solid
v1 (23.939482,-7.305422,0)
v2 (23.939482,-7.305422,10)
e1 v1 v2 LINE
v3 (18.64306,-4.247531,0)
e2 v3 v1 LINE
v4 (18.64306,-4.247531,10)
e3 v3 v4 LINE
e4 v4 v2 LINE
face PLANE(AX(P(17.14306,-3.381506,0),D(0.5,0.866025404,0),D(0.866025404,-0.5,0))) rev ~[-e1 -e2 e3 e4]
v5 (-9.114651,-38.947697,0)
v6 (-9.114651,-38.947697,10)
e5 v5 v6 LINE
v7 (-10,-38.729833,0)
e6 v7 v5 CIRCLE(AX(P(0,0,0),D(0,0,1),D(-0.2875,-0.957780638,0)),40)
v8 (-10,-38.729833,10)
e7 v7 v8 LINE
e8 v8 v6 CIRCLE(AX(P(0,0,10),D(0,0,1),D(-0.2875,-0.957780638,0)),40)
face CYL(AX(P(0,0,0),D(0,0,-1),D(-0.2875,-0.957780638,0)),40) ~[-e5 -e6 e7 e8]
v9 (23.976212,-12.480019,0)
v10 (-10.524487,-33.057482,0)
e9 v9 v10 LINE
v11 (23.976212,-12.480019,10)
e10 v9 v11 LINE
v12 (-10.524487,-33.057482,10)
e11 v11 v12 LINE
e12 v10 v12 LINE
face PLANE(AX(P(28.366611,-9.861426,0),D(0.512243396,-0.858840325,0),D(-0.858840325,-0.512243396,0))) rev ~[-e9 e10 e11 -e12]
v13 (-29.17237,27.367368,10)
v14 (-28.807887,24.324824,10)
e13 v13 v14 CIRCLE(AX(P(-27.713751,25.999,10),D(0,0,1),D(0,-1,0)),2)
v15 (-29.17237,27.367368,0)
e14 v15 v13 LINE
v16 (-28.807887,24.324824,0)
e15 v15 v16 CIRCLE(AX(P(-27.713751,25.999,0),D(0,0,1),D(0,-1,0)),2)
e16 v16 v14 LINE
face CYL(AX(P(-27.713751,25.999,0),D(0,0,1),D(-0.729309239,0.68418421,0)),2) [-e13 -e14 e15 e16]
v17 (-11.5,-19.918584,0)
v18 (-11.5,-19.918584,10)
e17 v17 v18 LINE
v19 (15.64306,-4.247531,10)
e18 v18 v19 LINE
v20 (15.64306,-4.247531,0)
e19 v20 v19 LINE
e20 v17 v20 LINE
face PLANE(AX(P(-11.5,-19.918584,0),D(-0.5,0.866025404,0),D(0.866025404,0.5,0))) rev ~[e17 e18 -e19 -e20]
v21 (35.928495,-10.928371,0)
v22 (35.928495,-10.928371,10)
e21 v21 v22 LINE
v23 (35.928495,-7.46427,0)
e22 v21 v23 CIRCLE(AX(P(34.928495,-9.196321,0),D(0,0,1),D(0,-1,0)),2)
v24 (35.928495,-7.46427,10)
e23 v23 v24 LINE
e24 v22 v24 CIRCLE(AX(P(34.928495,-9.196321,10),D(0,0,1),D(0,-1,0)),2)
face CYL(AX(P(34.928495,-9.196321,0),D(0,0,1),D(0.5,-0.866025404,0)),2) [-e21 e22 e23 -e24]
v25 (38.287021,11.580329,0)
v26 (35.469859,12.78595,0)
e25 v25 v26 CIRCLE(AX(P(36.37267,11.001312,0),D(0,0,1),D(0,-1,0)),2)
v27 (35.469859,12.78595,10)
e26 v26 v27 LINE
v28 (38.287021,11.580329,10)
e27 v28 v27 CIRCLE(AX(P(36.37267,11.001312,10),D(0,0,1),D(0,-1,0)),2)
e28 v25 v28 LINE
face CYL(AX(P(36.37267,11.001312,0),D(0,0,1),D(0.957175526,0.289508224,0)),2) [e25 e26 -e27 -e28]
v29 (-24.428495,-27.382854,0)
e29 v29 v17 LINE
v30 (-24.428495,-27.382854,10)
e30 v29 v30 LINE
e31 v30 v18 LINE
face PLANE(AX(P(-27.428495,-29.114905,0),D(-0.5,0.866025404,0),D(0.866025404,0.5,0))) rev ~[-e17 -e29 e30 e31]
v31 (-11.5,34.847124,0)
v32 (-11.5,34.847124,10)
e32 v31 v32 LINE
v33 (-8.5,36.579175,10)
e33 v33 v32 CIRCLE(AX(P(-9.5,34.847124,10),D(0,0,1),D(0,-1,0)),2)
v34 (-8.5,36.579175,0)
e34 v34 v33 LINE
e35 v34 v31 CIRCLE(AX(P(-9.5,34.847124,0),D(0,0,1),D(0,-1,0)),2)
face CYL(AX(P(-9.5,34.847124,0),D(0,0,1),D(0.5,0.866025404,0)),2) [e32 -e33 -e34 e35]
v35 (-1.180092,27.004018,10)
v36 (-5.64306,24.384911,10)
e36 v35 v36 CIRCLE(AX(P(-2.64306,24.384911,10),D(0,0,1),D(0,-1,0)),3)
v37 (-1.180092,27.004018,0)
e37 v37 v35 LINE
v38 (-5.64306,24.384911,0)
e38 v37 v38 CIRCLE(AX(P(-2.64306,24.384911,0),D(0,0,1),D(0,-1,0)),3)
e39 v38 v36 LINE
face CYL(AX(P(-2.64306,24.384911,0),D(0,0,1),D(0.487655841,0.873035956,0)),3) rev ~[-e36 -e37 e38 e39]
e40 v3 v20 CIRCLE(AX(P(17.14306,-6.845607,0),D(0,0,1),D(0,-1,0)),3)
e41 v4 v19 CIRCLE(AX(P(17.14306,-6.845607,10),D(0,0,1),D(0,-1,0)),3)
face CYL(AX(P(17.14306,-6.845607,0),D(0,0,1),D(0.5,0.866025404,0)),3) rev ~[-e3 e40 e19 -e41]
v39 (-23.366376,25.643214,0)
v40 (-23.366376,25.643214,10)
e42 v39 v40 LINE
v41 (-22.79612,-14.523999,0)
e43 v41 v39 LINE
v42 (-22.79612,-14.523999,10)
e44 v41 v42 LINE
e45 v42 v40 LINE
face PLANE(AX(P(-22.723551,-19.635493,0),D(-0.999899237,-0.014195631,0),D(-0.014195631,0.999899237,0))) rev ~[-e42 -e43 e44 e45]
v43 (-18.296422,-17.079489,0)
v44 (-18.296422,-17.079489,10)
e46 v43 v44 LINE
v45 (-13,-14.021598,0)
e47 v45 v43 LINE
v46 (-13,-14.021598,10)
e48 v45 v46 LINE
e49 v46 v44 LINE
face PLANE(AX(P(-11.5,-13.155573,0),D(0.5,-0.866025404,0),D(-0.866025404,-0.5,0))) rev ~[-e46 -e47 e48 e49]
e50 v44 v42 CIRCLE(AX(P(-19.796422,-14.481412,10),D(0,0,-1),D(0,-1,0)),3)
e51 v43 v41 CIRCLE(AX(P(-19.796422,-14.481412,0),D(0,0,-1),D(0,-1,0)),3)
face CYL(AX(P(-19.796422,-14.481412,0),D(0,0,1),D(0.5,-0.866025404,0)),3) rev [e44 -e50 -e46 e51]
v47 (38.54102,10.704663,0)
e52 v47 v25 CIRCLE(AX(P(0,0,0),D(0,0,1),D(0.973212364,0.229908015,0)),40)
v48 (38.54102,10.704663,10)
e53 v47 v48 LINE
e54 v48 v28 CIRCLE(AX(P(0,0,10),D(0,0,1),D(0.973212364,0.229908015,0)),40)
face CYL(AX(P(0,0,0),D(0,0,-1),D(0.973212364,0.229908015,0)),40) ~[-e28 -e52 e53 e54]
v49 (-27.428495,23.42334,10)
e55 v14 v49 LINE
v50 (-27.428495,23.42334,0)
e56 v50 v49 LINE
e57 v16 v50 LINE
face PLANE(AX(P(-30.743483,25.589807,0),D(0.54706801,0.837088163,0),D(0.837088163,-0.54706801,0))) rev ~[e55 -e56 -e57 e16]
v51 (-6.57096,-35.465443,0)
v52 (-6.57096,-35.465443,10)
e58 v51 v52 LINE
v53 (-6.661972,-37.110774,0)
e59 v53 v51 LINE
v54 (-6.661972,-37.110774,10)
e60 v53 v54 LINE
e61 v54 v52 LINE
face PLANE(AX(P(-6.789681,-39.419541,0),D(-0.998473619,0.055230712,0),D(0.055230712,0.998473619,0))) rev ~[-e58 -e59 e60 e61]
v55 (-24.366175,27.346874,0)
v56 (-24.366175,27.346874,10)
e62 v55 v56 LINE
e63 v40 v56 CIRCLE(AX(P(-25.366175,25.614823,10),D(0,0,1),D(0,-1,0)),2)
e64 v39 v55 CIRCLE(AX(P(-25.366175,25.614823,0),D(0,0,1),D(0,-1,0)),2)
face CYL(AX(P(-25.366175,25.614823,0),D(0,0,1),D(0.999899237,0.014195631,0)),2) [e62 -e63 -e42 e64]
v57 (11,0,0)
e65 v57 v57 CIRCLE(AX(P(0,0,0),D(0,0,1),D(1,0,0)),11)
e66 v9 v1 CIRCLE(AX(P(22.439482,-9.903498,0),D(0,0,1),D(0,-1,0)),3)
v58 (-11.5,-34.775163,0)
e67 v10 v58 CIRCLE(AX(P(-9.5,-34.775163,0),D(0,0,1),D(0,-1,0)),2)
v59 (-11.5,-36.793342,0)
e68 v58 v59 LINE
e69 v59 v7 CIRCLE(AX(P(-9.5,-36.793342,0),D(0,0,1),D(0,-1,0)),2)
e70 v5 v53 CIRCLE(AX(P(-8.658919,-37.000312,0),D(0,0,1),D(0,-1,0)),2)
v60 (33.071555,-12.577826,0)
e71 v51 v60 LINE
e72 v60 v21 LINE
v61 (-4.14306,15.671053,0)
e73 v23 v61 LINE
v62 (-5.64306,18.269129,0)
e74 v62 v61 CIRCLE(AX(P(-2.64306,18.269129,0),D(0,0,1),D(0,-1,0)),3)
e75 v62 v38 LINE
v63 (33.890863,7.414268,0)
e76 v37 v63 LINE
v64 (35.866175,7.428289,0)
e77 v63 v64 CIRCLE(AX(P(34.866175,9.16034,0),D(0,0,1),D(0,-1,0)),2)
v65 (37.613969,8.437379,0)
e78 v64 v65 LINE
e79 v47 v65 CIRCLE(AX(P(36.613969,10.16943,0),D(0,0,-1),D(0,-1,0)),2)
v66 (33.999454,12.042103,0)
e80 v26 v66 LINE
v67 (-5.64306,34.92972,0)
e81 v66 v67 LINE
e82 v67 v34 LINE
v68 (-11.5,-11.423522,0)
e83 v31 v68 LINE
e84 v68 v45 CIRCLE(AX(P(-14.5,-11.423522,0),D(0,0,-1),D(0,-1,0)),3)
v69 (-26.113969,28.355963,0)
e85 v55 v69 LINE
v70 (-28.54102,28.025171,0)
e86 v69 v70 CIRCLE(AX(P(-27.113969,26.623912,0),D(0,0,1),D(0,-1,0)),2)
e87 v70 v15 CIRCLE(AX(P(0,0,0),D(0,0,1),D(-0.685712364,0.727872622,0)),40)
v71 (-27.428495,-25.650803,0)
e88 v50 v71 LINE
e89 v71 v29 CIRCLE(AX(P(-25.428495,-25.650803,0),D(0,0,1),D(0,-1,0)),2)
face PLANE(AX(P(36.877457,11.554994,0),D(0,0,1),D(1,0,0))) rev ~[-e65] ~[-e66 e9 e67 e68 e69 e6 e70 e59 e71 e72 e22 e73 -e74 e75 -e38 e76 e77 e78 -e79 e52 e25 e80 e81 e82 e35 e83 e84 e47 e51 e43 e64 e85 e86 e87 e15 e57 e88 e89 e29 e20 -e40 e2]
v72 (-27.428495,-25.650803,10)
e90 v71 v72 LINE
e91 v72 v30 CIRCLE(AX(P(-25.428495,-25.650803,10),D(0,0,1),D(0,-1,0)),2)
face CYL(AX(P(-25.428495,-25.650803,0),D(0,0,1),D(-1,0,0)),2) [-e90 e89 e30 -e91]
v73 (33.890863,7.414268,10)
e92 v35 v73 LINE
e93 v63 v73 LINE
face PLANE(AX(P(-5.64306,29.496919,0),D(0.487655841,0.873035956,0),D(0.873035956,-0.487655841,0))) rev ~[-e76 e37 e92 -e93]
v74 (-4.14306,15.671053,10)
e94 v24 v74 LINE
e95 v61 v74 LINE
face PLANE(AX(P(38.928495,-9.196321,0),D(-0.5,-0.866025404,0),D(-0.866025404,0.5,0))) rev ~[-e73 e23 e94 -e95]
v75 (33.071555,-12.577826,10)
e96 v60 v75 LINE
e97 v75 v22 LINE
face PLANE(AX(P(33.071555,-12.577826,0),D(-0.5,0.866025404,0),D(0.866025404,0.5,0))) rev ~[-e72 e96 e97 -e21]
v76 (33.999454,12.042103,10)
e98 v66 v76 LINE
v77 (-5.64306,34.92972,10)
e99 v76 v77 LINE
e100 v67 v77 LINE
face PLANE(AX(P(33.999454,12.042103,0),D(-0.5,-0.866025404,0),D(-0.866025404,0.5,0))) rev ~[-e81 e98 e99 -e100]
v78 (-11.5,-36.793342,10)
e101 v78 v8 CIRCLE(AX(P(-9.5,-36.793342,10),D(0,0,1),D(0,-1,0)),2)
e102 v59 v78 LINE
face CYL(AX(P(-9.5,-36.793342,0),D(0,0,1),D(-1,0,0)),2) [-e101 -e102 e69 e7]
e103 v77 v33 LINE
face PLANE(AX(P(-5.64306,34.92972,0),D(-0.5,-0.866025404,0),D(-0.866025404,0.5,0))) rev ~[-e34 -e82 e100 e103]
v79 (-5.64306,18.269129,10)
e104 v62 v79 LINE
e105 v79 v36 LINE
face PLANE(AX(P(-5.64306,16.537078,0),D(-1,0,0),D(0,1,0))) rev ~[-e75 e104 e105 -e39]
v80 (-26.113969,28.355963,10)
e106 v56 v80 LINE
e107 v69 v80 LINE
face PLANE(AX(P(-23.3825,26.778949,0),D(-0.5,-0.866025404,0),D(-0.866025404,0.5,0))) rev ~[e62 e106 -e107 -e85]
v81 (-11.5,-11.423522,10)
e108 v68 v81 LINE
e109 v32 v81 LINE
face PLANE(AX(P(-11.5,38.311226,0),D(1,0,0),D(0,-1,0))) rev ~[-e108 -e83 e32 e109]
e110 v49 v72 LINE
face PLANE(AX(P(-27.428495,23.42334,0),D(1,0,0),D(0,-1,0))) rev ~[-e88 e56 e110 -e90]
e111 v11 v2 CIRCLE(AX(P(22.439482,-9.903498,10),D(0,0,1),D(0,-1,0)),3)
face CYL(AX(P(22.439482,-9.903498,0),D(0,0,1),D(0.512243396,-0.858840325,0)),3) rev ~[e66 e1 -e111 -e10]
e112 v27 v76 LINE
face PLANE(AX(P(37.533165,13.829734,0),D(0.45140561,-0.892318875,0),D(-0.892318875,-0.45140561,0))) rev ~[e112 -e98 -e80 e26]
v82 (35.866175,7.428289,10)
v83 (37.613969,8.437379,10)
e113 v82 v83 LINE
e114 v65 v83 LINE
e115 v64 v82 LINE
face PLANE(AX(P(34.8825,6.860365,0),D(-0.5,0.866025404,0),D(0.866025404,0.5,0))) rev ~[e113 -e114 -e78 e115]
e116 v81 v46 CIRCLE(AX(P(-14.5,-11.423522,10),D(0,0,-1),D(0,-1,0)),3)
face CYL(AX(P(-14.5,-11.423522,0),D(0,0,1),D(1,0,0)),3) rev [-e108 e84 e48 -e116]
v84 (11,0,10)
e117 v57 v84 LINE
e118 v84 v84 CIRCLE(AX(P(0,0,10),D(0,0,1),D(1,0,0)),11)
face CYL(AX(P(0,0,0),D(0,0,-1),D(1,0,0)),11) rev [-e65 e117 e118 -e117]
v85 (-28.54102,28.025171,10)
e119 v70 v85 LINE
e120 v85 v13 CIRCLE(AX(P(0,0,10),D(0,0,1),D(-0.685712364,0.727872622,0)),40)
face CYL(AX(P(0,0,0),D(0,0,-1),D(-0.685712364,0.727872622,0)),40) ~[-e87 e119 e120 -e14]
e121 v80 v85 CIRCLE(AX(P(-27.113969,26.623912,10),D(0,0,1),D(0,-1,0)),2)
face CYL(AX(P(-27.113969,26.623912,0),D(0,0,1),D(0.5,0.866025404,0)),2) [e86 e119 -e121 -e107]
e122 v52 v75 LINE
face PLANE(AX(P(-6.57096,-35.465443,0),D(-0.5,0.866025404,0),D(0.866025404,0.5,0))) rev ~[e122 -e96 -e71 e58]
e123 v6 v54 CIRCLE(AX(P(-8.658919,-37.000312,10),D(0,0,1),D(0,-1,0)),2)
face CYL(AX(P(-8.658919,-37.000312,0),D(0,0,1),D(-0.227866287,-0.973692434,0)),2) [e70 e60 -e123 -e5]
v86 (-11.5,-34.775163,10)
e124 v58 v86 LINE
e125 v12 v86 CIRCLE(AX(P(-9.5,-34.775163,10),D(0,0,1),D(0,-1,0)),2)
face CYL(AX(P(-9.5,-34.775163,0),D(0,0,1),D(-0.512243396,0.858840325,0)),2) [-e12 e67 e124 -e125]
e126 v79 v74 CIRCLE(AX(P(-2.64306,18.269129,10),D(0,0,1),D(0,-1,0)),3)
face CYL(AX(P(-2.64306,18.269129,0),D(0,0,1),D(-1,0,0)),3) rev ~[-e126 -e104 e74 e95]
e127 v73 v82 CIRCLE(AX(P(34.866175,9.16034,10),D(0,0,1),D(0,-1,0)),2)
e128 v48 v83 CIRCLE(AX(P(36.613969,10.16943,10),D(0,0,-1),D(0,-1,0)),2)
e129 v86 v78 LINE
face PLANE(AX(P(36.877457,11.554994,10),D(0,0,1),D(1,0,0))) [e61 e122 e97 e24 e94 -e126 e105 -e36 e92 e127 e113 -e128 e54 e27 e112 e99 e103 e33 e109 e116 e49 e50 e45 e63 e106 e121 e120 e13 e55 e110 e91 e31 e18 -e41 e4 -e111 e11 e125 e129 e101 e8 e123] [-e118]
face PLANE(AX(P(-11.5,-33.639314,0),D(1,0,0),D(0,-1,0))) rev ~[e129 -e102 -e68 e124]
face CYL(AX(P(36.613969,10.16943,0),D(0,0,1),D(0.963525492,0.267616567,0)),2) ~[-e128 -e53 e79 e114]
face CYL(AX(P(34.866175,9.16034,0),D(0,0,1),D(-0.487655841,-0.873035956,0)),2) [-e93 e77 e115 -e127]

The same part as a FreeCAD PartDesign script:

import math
import FreeCAD as App
import Part
import Sketcher
from FreeCAD import Vector
Q = App.Units.Quantity


def edges_at(feature, points):
    """Names of the edges that pass closest to the given points."""
    edges = feature.Shape.Edges
    near = lambda p: min(range(len(edges)), key=lambda i: edges[i].distToShape(Part.Vertex(*p))[0])
    return sorted({f"Edge{near(p) + 1}" for p in points})

doc = App.newDocument("Part")
params = doc.addObject("Spreadsheet::Sheet", "Params")
for row, (alias, value) in enumerate([
    ("sketch1_diameter", "22 mm"),
    ("sketch1_radius", "40 mm"),
    ("pad1_length", "10 mm"),
    ("fillet_radius", "2 mm"),
    ("fillet2_radius", "3 mm"),
], start=1):
    params.set(f"A{row}", alias)
    params.set(f"B{row}", "=" + value)
    params.setAlias(f"B{row}", alias)

body = doc.addObject("PartDesign::Body", "Body")

# Sketch on XY plane
sketch1 = body.newObject("Sketcher::SketchObject", "Sketch")
sketch1.AttachmentSupport = (doc.getObject("XY_Plane"), [""])
sketch1.MapMode = "FlatFace"
sketch1.addGeometry(Part.ArcOfCircle(Part.Circle(Vector(0, 0, 0), Vector(0, 0, 1), 40), math.radians(13.291656), math.radians(20.227179)), False)
sketch1.addGeometry(Part.LineSegment(Vector(37.533165, 13.829734, 0), Vector(33.999454, 12.042103, 0)), False)
sketch1.addGeometry(Part.LineSegment(Vector(33.999454, 12.042103, 0), Vector(-5.64306, 34.92972, 0)), False)
sketch1.addGeometry(Part.LineSegment(Vector(-5.64306, 34.92972, 0), Vector(-11.5, 38.311226, 0)), False)
sketch1.addGeometry(Part.LineSegment(Vector(-11.5, 38.311226, 0), Vector(-11.5, -13.155573, 0)), False)
sketch1.addGeometry(Part.LineSegment(Vector(-11.5, -13.155573, 0), Vector(-22.723551, -19.635493, 0)), False)
sketch1.addGeometry(Part.LineSegment(Vector(-22.723551, -19.635493, 0), Vector(-23.3825, 26.778949, 0)), False)
sketch1.addGeometry(Part.LineSegment(Vector(-23.3825, 26.778949, 0), Vector(-27.428495, 29.114905, 0)), False)
sketch1.addGeometry(Part.ArcOfCircle(Part.Circle(Vector(0, 0, 0), Vector(0, 0, 1), 40), math.radians(133.291656), math.radians(140.227179)), False)
sketch1.addGeometry(Part.LineSegment(Vector(-30.743483, 25.589807, 0), Vector(-27.428495, 23.42334, 0)), False)
sketch1.addGeometry(Part.LineSegment(Vector(-27.428495, 23.42334, 0), Vector(-27.428495, -29.114905, 0)), False)
sketch1.addGeometry(Part.LineSegment(Vector(-27.428495, -29.114905, 0), Vector(-11.5, -19.918584, 0)), False)
sketch1.addGeometry(Part.LineSegment(Vector(-11.5, -19.918584, 0), Vector(17.14306, -3.381506, 0)), False)
sketch1.addGeometry(Part.LineSegment(Vector(17.14306, -3.381506, 0), Vector(28.366611, -9.861426, 0)), False)
sketch1.addGeometry(Part.LineSegment(Vector(28.366611, -9.861426, 0), Vector(-11.5, -33.639314, 0)), False)
sketch1.addGeometry(Part.LineSegment(Vector(-11.5, -33.639314, 0), Vector(-11.5, -38.311226, 0)), False)
sketch1.addGeometry(Part.ArcOfCircle(Part.Circle(Vector(0, 0, 0), Vector(0, 0, 1), 40), math.radians(-106.708344), math.radians(-99.772821)), False)
sketch1.addGeometry(Part.LineSegment(Vector(-6.789681, -39.419541, 0), Vector(-6.57096, -35.465443, 0)), False)
sketch1.addGeometry(Part.LineSegment(Vector(-6.57096, -35.465443, 0), Vector(33.071555, -12.577826, 0)), False)
sketch1.addGeometry(Part.LineSegment(Vector(33.071555, -12.577826, 0), Vector(38.928495, -9.196321, 0)), False)
sketch1.addGeometry(Part.LineSegment(Vector(38.928495, -9.196321, 0), Vector(-5.64306, 16.537078, 0)), False)
sketch1.addGeometry(Part.LineSegment(Vector(-5.64306, 16.537078, 0), Vector(-5.64306, 29.496919, 0)), False)
sketch1.addGeometry(Part.LineSegment(Vector(-5.64306, 29.496919, 0), Vector(34.8825, 6.860365, 0)), False)
sketch1.addGeometry(Part.LineSegment(Vector(34.8825, 6.860365, 0), Vector(38.928495, 9.196321, 0)), False)
sketch1.addGeometry(Part.Circle(Vector(0, 0, 0), Vector(0, 0, 1), 11), False)
sketch1.addConstraint(Sketcher.Constraint("Coincident", 0, 2, 1, 1))
sketch1.addConstraint(Sketcher.Constraint("Coincident", 1, 2, 2, 1))
sketch1.addConstraint(Sketcher.Constraint("Coincident", 2, 2, 3, 1))
sketch1.addConstraint(Sketcher.Constraint("Coincident", 3, 2, 4, 1))
sketch1.addConstraint(Sketcher.Constraint("Coincident", 4, 2, 5, 1))
sketch1.addConstraint(Sketcher.Constraint("Coincident", 5, 2, 6, 1))
sketch1.addConstraint(Sketcher.Constraint("Coincident", 6, 2, 7, 1))
sketch1.addConstraint(Sketcher.Constraint("Coincident", 7, 2, 8, 1))
sketch1.addConstraint(Sketcher.Constraint("Coincident", 8, 2, 9, 1))
sketch1.addConstraint(Sketcher.Constraint("Coincident", 9, 2, 10, 1))
sketch1.addConstraint(Sketcher.Constraint("Coincident", 10, 2, 11, 1))
sketch1.addConstraint(Sketcher.Constraint("Coincident", 11, 2, 12, 1))
sketch1.addConstraint(Sketcher.Constraint("Coincident", 12, 2, 13, 1))
sketch1.addConstraint(Sketcher.Constraint("Coincident", 13, 2, 14, 1))
sketch1.addConstraint(Sketcher.Constraint("Coincident", 14, 2, 15, 1))
sketch1.addConstraint(Sketcher.Constraint("Coincident", 15, 2, 16, 1))
sketch1.addConstraint(Sketcher.Constraint("Coincident", 16, 2, 17, 1))
sketch1.addConstraint(Sketcher.Constraint("Coincident", 17, 2, 18, 1))
sketch1.addConstraint(Sketcher.Constraint("Coincident", 18, 2, 19, 1))
sketch1.addConstraint(Sketcher.Constraint("Coincident", 19, 2, 20, 1))
sketch1.addConstraint(Sketcher.Constraint("Coincident", 20, 2, 21, 1))
sketch1.addConstraint(Sketcher.Constraint("Coincident", 21, 2, 22, 1))
sketch1.addConstraint(Sketcher.Constraint("Coincident", 22, 2, 23, 1))
sketch1.addConstraint(Sketcher.Constraint("Coincident", 23, 2, 0, 1))
sketch1.addConstraint(Sketcher.Constraint("Vertical", 4))
sketch1.addConstraint(Sketcher.Constraint("Vertical", 10))
sketch1.addConstraint(Sketcher.Constraint("Vertical", 15))
sketch1.addConstraint(Sketcher.Constraint("Vertical", 21))
sketch1.addConstraint(Sketcher.Constraint("Coincident", 0, 3, -1, 1))
sketch1.addConstraint(Sketcher.Constraint("Coincident", 8, 3, -1, 1))
sketch1.addConstraint(Sketcher.Constraint("Coincident", 16, 3, -1, 1))
sketch1.addConstraint(Sketcher.Constraint("Coincident", 24, 3, -1, 1))
sketch1.addConstraint(Sketcher.Constraint("Equal", 0, 8))
sketch1.addConstraint(Sketcher.Constraint("Equal", 8, 16))
sketch1.addConstraint(Sketcher.Constraint("Symmetric", 7, 2, 10, 2, -1))
sketch1.addConstraint(Sketcher.Constraint("Symmetric", 3, 2, 15, 2, -1))
sketch1.addConstraint(Sketcher.Constraint("Symmetric", 19, 2, 23, 2, -1))
sketch1.addConstraint(Sketcher.Constraint("Parallel", 2, 3))
sketch1.addConstraint(Sketcher.Constraint("Parallel", 3, 7))
sketch1.addConstraint(Sketcher.Constraint("Parallel", 5, 11))
sketch1.addConstraint(Sketcher.Constraint("Parallel", 11, 12))
sketch1.addConstraint(Sketcher.Constraint("Parallel", 7, 13))
sketch1.addConstraint(Sketcher.Constraint("Parallel", 12, 18))
sketch1.addConstraint(Sketcher.Constraint("Parallel", 18, 19))
sketch1.addConstraint(Sketcher.Constraint("Parallel", 13, 20))
sketch1.addConstraint(Sketcher.Constraint("Parallel", 19, 23))
sketch1.addConstraint(Sketcher.Constraint("Vertical", 4, 2, 11, 2))
sketch1.addConstraint(Sketcher.Constraint("Vertical", 2, 2, 20, 2))
sketch1.addConstraint(Sketcher.Constraint("Equal", 1, 9))
sketch1.addConstraint(Sketcher.Constraint("Equal", 5, 13))
sketch1.addConstraint(Sketcher.Constraint("Equal", 6, 14))
sketch1.addConstraint(Sketcher.Constraint("Equal", 9, 17))
sketch1.addConstraint(Sketcher.Constraint("Equal", 2, 18))
sketch1.addConstraint(Sketcher.Constraint("Equal", 3, 19))
sketch1.addConstraint(Sketcher.Constraint("Equal", 14, 22))
sketch1.addConstraint(Sketcher.Constraint("Equal", 7, 23))
sketch1.addConstraint(Sketcher.Constraint("Diameter", 24, 22.0))
sketch1.addConstraint(Sketcher.Constraint("Radius", 0, 40.0))
sketch1.addConstraint(Sketcher.Constraint("Angle", 2, Q("150 deg")))
sketch1.addConstraint(Sketcher.Constraint("Angle", 5, Q("-150 deg")))
sketch1.addConstraint(Sketcher.Constraint("DistanceX", 3, 2, -1, 1, 11.5))
sketch1.addConstraint(Sketcher.Constraint("DistanceY", 4, 2, 4, 1, 51.466798))
sketch1.addConstraint(Sketcher.Constraint("Distance", 20, 51.466798))
sketch1.addConstraint(Sketcher.Constraint("DistanceY", 15, 2, 15, 1, 4.671912))
sketch1.addConstraint(Sketcher.Constraint("DistanceY", 21, 1, 21, 2, 12.959841))
sketch1.addConstraint(Sketcher.Constraint("DistanceX", 6, 2, -1, 1, 23.3825))
sketch1.addConstraint(Sketcher.Constraint("DistanceX", -1, 1, 22, 2, 34.8825))
sketch1.addConstraint(Sketcher.Constraint("DistanceY", 16, 2, 17, 2, 3.954098))
sketch1.addConstraint(Sketcher.Constraint("DistanceY", 18, 2, 13, 2, 2.7164))
sketch1.addConstraint(Sketcher.Constraint("DistanceX", 18, 2, 1, 2, 0.9279))
sketch1.addConstraint(Sketcher.Constraint("DistanceY", 10, 2, 10, 1, 52.538245))
sketch1.setExpression("Constraints[56]", "Params.sketch1_diameter")
sketch1.setExpression("Constraints[57]", "Params.sketch1_radius")
pad1 = body.newObject("PartDesign::Pad", "Pad")
pad1.Profile = sketch1
pad1.setExpression("Length", "Params.pad1_length")
doc.recompute()

fillet = body.newObject("PartDesign::Fillet", "Fillet")
fillet.Base = (pad1, edges_at(pad1, [
    (37.533, 13.83, 5),
    (-11.5, 38.311, 5),
    (38.928, -9.196, 5),
    (38.928, 9.196, 5),
    (34.883, 6.86, 5),
    (-6.79, -39.42, 5),
    (-11.5, -33.639, 5),
    (-11.5, -38.311, 5),
    (-27.428, -29.115, 5),
    (-30.743, 25.59, 5),
    (-27.428, 29.115, 5),
    (-23.383, 26.779, 5),
]))
fillet.setExpression("Radius", "Params.fillet_radius")
doc.recompute()

fillet2 = body.newObject("PartDesign::Fillet", "Fillet001")
fillet2.Base = (fillet, edges_at(fillet, [
    (28.367, -9.861, 5),
    (17.143, -3.382, 5),
    (-5.643, 16.537, 5),
    (-5.643, 29.497, 5),
    (-11.5, -13.156, 5),
    (-22.724, -19.635, 5),
]))
fillet2.setExpression("Radius", "Params.fillet2_radius")

doc.recompute()
